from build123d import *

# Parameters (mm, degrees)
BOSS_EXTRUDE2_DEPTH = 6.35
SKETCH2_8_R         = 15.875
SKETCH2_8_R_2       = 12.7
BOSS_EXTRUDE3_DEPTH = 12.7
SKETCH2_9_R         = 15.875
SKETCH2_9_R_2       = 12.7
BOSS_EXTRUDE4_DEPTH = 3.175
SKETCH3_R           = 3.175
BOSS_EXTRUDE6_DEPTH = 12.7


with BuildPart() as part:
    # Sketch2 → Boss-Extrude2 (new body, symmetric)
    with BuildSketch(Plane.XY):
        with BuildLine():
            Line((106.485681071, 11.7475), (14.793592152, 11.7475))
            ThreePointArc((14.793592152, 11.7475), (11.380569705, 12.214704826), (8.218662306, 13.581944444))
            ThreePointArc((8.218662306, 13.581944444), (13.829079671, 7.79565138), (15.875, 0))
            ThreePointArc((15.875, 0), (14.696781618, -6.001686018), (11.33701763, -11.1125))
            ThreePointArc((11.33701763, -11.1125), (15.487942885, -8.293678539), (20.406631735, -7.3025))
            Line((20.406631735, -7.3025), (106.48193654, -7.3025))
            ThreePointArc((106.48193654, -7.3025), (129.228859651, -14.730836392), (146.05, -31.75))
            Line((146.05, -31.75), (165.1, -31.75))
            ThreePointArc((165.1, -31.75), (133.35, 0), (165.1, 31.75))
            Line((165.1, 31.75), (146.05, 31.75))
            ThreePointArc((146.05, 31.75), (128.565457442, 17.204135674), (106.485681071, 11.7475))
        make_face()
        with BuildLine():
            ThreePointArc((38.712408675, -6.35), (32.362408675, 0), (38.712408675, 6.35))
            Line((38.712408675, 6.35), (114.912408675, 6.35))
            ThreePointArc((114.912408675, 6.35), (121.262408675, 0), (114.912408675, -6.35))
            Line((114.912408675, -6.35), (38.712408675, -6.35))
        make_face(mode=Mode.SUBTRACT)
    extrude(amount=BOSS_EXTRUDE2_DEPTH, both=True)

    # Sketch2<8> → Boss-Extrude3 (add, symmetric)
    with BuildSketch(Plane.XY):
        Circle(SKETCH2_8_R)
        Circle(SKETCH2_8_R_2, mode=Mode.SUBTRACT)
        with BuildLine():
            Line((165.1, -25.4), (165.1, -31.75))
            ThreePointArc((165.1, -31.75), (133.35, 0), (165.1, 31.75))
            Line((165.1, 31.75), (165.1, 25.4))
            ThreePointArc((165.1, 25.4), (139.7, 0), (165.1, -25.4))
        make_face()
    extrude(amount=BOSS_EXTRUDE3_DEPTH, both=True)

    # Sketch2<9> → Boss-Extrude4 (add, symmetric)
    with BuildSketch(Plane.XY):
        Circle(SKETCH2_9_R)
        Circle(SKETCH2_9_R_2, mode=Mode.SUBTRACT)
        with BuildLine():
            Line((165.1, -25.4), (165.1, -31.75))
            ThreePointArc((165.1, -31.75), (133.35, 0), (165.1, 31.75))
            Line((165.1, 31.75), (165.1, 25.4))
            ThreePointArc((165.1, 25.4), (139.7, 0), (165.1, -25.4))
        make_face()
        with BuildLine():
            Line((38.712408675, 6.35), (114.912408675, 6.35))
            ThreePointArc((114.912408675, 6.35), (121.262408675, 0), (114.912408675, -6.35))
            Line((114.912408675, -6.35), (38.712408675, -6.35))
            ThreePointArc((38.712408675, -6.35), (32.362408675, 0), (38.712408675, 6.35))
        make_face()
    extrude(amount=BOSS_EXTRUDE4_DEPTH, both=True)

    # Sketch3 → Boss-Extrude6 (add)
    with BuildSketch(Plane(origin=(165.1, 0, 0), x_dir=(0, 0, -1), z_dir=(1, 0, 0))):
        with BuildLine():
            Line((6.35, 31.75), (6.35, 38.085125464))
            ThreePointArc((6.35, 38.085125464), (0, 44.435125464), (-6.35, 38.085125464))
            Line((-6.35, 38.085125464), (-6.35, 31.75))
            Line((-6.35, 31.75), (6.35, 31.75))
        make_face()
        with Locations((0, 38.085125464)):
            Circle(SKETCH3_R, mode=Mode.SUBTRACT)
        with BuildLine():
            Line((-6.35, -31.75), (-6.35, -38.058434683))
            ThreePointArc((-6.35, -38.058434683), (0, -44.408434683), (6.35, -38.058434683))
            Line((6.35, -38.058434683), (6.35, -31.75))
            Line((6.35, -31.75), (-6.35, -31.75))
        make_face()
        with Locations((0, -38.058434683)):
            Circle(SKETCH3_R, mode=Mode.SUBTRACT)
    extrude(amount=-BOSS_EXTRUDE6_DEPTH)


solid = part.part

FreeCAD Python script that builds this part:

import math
import FreeCAD as App
import Part
import Sketcher
from FreeCAD import Vector
Q = App.Units.Quantity

doc = App.newDocument("Part")
params = doc.addObject("Spreadsheet::Sheet", "Params")
for row, (alias, value) in enumerate([
    ("sketch1_radius", "0.5 in"),
    ("sketch1_width", "3 in"),
    ("sketch1_radius2", "1.25 in"),
    ("sketch1_radius3", "0.25 in"),
    ("sketch1_radius4", "0.625 in"),
    ("pad1_length", "0.5 in"),
    ("sketch2_diameter", "1 in"),
    ("sketch2_radius", "1 in"),
    ("sketch2_diameter2", "1.25 in"),
    ("sketch2_radius2", "1.25 in"),
    ("pad2_length", "1 in"),
    ("sketch3_diameter", "1 in"),
    ("sketch3_radius", "1 in"),
    ("sketch3_diameter2", "1.25 in"),
    ("sketch3_width", "3 in"),
    ("sketch3_radius2", "1.25 in"),
    ("pad3_length", "0.25 in"),
    ("sketch4_diameter", "0.25 in"),
    ("sketch4_radius", "0.25 in"),
    ("pad4_length", "0.5 in"),
], start=1):
    params.set(f"A{row}", alias)
    params.set(f"B{row}", "=" + value)
    params.setAlias(f"B{row}", alias)

body = doc.addObject("PartDesign::Body", "Body")

sketch1 = body.newObject("Sketcher::SketchObject", "Sketch")
sketch1.AttachmentSupport = (doc.getObject("XY_Plane"), [""])
sketch1.MapMode = "FlatFace"
sketch1.addGeometry([
    Part.LineSegment(Vector(106.485681, 11.7475, 0), Vector(14.793592, 11.7475, 0)),
    Part.ArcOfCircle(Part.Circle(Vector(14.793592, 24.4475, 0), Vector(0, 0, 1), 12.7), math.radians(-121.178836), math.radians(-90)),
    Part.ArcOfCircle(Part.Circle(Vector(0, 0, 0), Vector(0, 0, 1), 15.875), math.radians(0), math.radians(58.821164)),
    Part.ArcOfCircle(Part.Circle(Vector(0, 0, 0), Vector(0, 0, 1), 15.875), math.radians(-44.427004), math.radians(0)),
    Part.ArcOfCircle(Part.Circle(Vector(20.406632, -20.0025, 0), Vector(0, 0, 1), 12.7), math.radians(90), math.radians(135.572996)),
    Part.LineSegment(Vector(20.406632, -7.3025, 0), Vector(106.481937, -7.3025, 0)),
    Part.ArcOfCircle(Part.Circle(Vector(102.532169, -57.939195, 0), Vector(0, 0, 1), 50.790507), math.radians(31.039688), math.radians(85.539841)),
    Part.LineSegment(Vector(146.05, -31.75, 0), Vector(165.1, -31.75, 0)),
    Part.ArcOfCircle(Part.Circle(Vector(165.1, 0, 0), Vector(0, 0, 1), 31.75), math.radians(90), math.radians(270)),
    Part.LineSegment(Vector(165.1, 31.75, 0), Vector(146.05, 31.75, 0)),
    Part.ArcOfCircle(Part.Circle(Vector(105.64953, 62.531123, 0), Vector(0, 0, 1), 50.790506), math.radians(-89.056712), math.radians(-37.30378)),
    Part.LineSegment(Vector(114.912409, -6.35, 0), Vector(38.712409, -6.35, 0)),
    Part.ArcOfCircle(Part.Circle(Vector(38.712409, 0, 0), Vector(0, 0, 1), 6.35), math.radians(90), math.radians(270)),
    Part.LineSegment(Vector(38.712409, 6.35, 0), Vector(114.912409, 6.35, 0)),
    Part.ArcOfCircle(Part.Circle(Vector(114.912409, 0, 0), Vector(0, 0, 1), 6.35), math.radians(-90), math.radians(90)),
], False)
sketch1.addConstraint([
    Sketcher.Constraint("Tangent", 0, 2, 1, 2),
    Sketcher.Constraint("Tangent", 1, 1, 2, 2),
    Sketcher.Constraint("Tangent", 2, 1, 3, 2),
    Sketcher.Constraint("Tangent", 3, 1, 4, 2),
    Sketcher.Constraint("Tangent", 4, 1, 5, 1),
    Sketcher.Constraint("Coincident", 5, 2, 6, 2),
    Sketcher.Constraint("Coincident", 6, 1, 7, 1),
    Sketcher.Constraint("Tangent", 7, 2, 8, 2),
    Sketcher.Constraint("Tangent", 8, 1, 9, 1),
    Sketcher.Constraint("Coincident", 9, 2, 10, 2),
    Sketcher.Constraint("Coincident", 10, 1, 0, 1),
    Sketcher.Constraint("Tangent", 11, 2, 12, 2),
    Sketcher.Constraint("Tangent", 12, 1, 13, 1),
    Sketcher.Constraint("Tangent", 13, 2, 14, 2),
    Sketcher.Constraint("Tangent", 14, 1, 11, 1),
    Sketcher.Constraint("Horizontal", 0),
    Sketcher.Constraint("Horizontal", 5),
    Sketcher.Constraint("Horizontal", 7),
    Sketcher.Constraint("Horizontal", 9),
    Sketcher.Constraint("Horizontal", 11),
    Sketcher.Constraint("Horizontal", 13),
    Sketcher.Constraint("Coincident", 2, 3, -1, 1),
    Sketcher.Constraint("Equal", 2, 3),
    Sketcher.Constraint("Equal", 1, 4),
    Sketcher.Constraint("Equal", 6, 10),
    Sketcher.Constraint("Symmetric", 6, 1, 9, 2, -1),
    Sketcher.Constraint("PointOnObject", 12, 3, -1),
    Sketcher.Constraint("PointOnObject", 2, 1, -1),
    Sketcher.Constraint("Radius", 1, Q("0.5 in")),
    Sketcher.Constraint("DistanceX", 11, 2, 11, 1, Q("3 in")),
    Sketcher.Constraint("Radius", 8, Q("1.25 in")),
    Sketcher.Constraint("Radius", 12, Q("0.25 in")),
    Sketcher.Constraint("Radius", 2, Q("0.625 in")),
    Sketcher.Constraint("DistanceX", 7, 1, 7, 2, Q("0.75 in")),
    Sketcher.Constraint("DistanceX", -1, 1, 8, 3, Q("6.5 in")),
    Sketcher.Constraint("DistanceY", 3, 1, 0, 2, Q("0.9 in")),
    Sketcher.Constraint("DistanceY", 4, 3, 1, 3, Q("1.75 in")),
    Sketcher.Constraint("Radius", 6, Q("50.790507 mm")),
    Sketcher.Constraint("DistanceX", 4, 3, 12, 3, Q("0.7206999 in")),
    Sketcher.Constraint("DistanceX", 0, 2, 0, 1, Q("91.692089 mm")),
    Sketcher.Constraint("DistanceX", 5, 1, 5, 2, Q("86.075305 mm")),
])
sketch1.setExpression("Constraints[28]", "Params.sketch1_radius")
sketch1.setExpression("Constraints[29]", "Params.sketch1_width")
sketch1.setExpression("Constraints[30]", "Params.sketch1_radius2")
sketch1.setExpression("Constraints[31]", "Params.sketch1_radius3")
sketch1.setExpression("Constraints[32]", "Params.sketch1_radius4")
pad1 = body.newObject("PartDesign::Pad", "Pad")
pad1.Profile = sketch1
pad1.setExpression("Length", "Params.pad1_length")
pad1.Midplane = True

sketch2 = body.newObject("Sketcher::SketchObject", "Sketch001")
sketch2.AttachmentSupport = (doc.getObject("XY_Plane"), [""])
sketch2.MapMode = "FlatFace"
sketch2.addGeometry([
    Part.Circle(Vector(0, 0, 0), Vector(0, 0, 1), 15.875),
    Part.Circle(Vector(0, 0, 0), Vector(0, 0, 1), 12.7),
    Part.LineSegment(Vector(165.1, -31.75, 0), Vector(165.1, -25.4, 0)),
    Part.ArcOfCircle(Part.Circle(Vector(165.1, 0, 0), Vector(0, 0, 1), 25.4), math.radians(90), math.radians(270)),
    Part.LineSegment(Vector(165.1, 25.4, 0), Vector(165.1, 31.75, 0)),
    Part.ArcOfCircle(Part.Circle(Vector(165.1, 0, 0), Vector(0, 0, 1), 31.75), math.radians(90), math.radians(270)),
], False)
sketch2.addConstraint([
    Sketcher.Constraint("Coincident", 2, 2, 3, 2),
    Sketcher.Constraint("Coincident", 3, 1, 4, 1),
    Sketcher.Constraint("Coincident", 4, 2, 5, 1),
    Sketcher.Constraint("Coincident", 5, 2, 2, 1),
    Sketcher.Constraint("Vertical", 2),
    Sketcher.Constraint("Vertical", 4),
    Sketcher.Constraint("Coincident", 0, 3, -1, 1),
    Sketcher.Constraint("Coincident", 1, 3, -1, 1),
    Sketcher.Constraint("Coincident", 5, 3, 3, 3),
    Sketcher.Constraint("Symmetric", 2, 2, 3, 1, -1),
    Sketcher.Constraint("Vertical", 5, 3, 2, 2),
    Sketcher.Constraint("Diameter", 1, Q("1 in")),
    Sketcher.Constraint("Radius", 3, Q("1 in")),
    Sketcher.Constraint("Diameter", 0, Q("1.25 in")),
    Sketcher.Constraint("Radius", 5, Q("1.25 in")),
    Sketcher.Constraint("DistanceX", -1, 1, 3, 3, Q("6.5 in")),
])
sketch2.setExpression("Constraints[11]", "Params.sketch2_diameter")
sketch2.setExpression("Constraints[12]", "Params.sketch2_radius")
sketch2.setExpression("Constraints[13]", "Params.sketch2_diameter2")
sketch2.setExpression("Constraints[14]", "Params.sketch2_radius2")
pad2 = body.newObject("PartDesign::Pad", "Pad001")
pad2.Profile = sketch2
pad2.setExpression("Length", "Params.pad2_length")
pad2.Midplane = True

sketch3 = body.newObject("Sketcher::SketchObject", "Sketch002")
sketch3.AttachmentSupport = (doc.getObject("XY_Plane"), [""])
sketch3.MapMode = "FlatFace"
sketch3.addGeometry([
    Part.Circle(Vector(0, 0, 0), Vector(0, 0, 1), 15.875),
    Part.Circle(Vector(0, 0, 0), Vector(0, 0, 1), 12.7),
    Part.LineSegment(Vector(165.1, -31.75, 0), Vector(165.1, -25.4, 0)),
    Part.ArcOfCircle(Part.Circle(Vector(165.1, 0, 0), Vector(0, 0, 1), 25.4), math.radians(90), math.radians(270)),
    Part.LineSegment(Vector(165.1, 25.4, 0), Vector(165.1, 31.75, 0)),
    Part.ArcOfCircle(Part.Circle(Vector(165.1, 0, 0), Vector(0, 0, 1), 31.75), math.radians(90), math.radians(270)),
    Part.LineSegment(Vector(114.912409, 6.35, 0), Vector(38.712409, 6.35, 0)),
    Part.ArcOfCircle(Part.Circle(Vector(38.712409, 0, 0), Vector(0, 0, 1), 6.35), math.radians(90), math.radians(270)),
    Part.LineSegment(Vector(38.712409, -6.35, 0), Vector(114.912409, -6.35, 0)),
    Part.ArcOfCircle(Part.Circle(Vector(114.912409, 0, 0), Vector(0, 0, 1), 6.35), math.radians(-90), math.radians(90)),
], False)
sketch3.addConstraint([
    Sketcher.Constraint("Coincident", 2, 2, 3, 2),
    Sketcher.Constraint("Coincident", 3, 1, 4, 1),
    Sketcher.Constraint("Coincident", 4, 2, 5, 1),
    Sketcher.Constraint("Coincident", 5, 2, 2, 1),
    Sketcher.Constraint("Tangent", 6, 2, 7, 1),
    Sketcher.Constraint("Tangent", 7, 2, 8, 1),
    Sketcher.Constraint("Tangent", 8, 2, 9, 1),
    Sketcher.Constraint("Tangent", 9, 2, 6, 1),
    Sketcher.Constraint("Vertical", 2),
    Sketcher.Constraint("Vertical", 4),
    Sketcher.Constraint("Horizontal", 6),
    Sketcher.Constraint("Horizontal", 8),
    Sketcher.Constraint("Coincident", 0, 3, -1, 1),
    Sketcher.Constraint("Coincident", 1, 3, -1, 1),
    Sketcher.Constraint("Coincident", 5, 3, 3, 3),
    Sketcher.Constraint("Symmetric", 2, 2, 3, 1, -1),
    Sketcher.Constraint("PointOnObject", 7, 3, -1),
    Sketcher.Constraint("Vertical", 5, 3, 2, 2),
    Sketcher.Constraint("Diameter", 1, Q("1 in")),
    Sketcher.Constraint("Radius", 3, Q("1 in")),
    Sketcher.Constraint("Diameter", 0, Q("1.25 in")),
    Sketcher.Constraint("DistanceX", 6, 2, 6, 1, Q("3 in")),
    Sketcher.Constraint("Radius", 5, Q("1.25 in")),
    Sketcher.Constraint("Radius", 7, Q("0.25 in")),
    Sketcher.Constraint("DistanceX", -1, 1, 3, 3, Q("6.5 in")),
    Sketcher.Constraint("DistanceX", -1, 1, 7, 3, Q("38.712409 mm")),
])
sketch3.setExpression("Constraints[18]", "Params.sketch3_diameter")
sketch3.setExpression("Constraints[19]", "Params.sketch3_radius")
sketch3.setExpression("Constraints[20]", "Params.sketch3_diameter2")
sketch3.setExpression("Constraints[21]", "Params.sketch3_width")
sketch3.setExpression("Constraints[22]", "Params.sketch3_radius2")
pad3 = body.newObject("PartDesign::Pad", "Pad002")
pad3.Profile = sketch3
pad3.setExpression("Length", "Params.pad3_length")
pad3.Midplane = True

sketch4 = body.newObject("Sketcher::SketchObject", "Sketch003")
sketch4.AttachmentSupport = (doc.getObject("YZ_Plane"), [""])
sketch4.MapMode = "FlatFace"
sketch4.AttachmentOffset = App.Placement(Vector(0, 0, 6.5 * 25.4), App.Rotation())
sketch4.addGeometry([
    Part.LineSegment(Vector(31.75, -6.35, 0), Vector(38.085125, -6.35, 0)),
    Part.ArcOfCircle(Part.Circle(Vector(38.085125, 0, 0), Vector(0, 0, 1), 6.35), math.radians(-90), math.radians(90)),
    Part.LineSegment(Vector(38.085125, 6.35, 0), Vector(31.75, 6.35, 0)),
    Part.LineSegment(Vector(31.75, 6.35, 0), Vector(31.75, -6.35, 0)),
    Part.Circle(Vector(38.085125, 0, 0), Vector(0, 0, 1), 3.175),
    Part.LineSegment(Vector(-31.75, 6.35, 0), Vector(-38.058435, 6.35, 0)),
    Part.ArcOfCircle(Part.Circle(Vector(-38.058435, 0, 0), Vector(0, 0, 1), 6.35), math.radians(90), math.radians(270)),
    Part.LineSegment(Vector(-38.058435, -6.35, 0), Vector(-31.75, -6.35, 0)),
    Part.LineSegment(Vector(-31.75, -6.35, 0), Vector(-31.75, 6.35, 0)),
    Part.Circle(Vector(-38.058435, 0, 0), Vector(0, 0, 1), 3.175),
], False)
sketch4.addConstraint([
    Sketcher.Constraint("Tangent", 0, 2, 1, 1),
    Sketcher.Constraint("Tangent", 1, 2, 2, 1),
    Sketcher.Constraint("Coincident", 2, 2, 3, 1),
    Sketcher.Constraint("Coincident", 3, 2, 0, 1),
    Sketcher.Constraint("Tangent", 5, 2, 6, 1),
    Sketcher.Constraint("Tangent", 6, 2, 7, 1),
    Sketcher.Constraint("Coincident", 7, 2, 8, 1),
    Sketcher.Constraint("Coincident", 8, 2, 5, 1),
    Sketcher.Constraint("Horizontal", 0),
    Sketcher.Constraint("Horizontal", 2),
    Sketcher.Constraint("Vertical", 3),
    Sketcher.Constraint("Horizontal", 5),
    Sketcher.Constraint("Horizontal", 7),
    Sketcher.Constraint("Vertical", 8),
    Sketcher.Constraint("Coincident", 4, 3, 1, 3),
    Sketcher.Constraint("Coincident", 9, 3, 6, 3),
    Sketcher.Constraint("Equal", 1, 6),
    Sketcher.Constraint("Equal", 4, 9),
    Sketcher.Constraint("Symmetric", 2, 2, 7, 2, -1, 1),
    Sketcher.Constraint("PointOnObject", 1, 3, -1),
    Sketcher.Constraint("Diameter", 4, Q("0.25 in")),
    Sketcher.Constraint("Radius", 1, Q("0.25 in")),
    Sketcher.Constraint("DistanceX", 7, 2, 3, 2, Q("2.5 in")),
    Sketcher.Constraint("DistanceX", 0, 1, 0, 2, Q("6.335125 mm")),
    Sketcher.Constraint("DistanceX", 5, 2, 5, 1, Q("6.308435 mm")),
])
sketch4.setExpression("Constraints[20]", "Params.sketch4_diameter")
sketch4.setExpression("Constraints[21]", "Params.sketch4_radius")
pad4 = body.newObject("PartDesign::Pad", "Pad003")
pad4.Profile = sketch4
pad4.setExpression("Length", "Params.pad4_length")
pad4.Reversed = True

doc.recompute()
